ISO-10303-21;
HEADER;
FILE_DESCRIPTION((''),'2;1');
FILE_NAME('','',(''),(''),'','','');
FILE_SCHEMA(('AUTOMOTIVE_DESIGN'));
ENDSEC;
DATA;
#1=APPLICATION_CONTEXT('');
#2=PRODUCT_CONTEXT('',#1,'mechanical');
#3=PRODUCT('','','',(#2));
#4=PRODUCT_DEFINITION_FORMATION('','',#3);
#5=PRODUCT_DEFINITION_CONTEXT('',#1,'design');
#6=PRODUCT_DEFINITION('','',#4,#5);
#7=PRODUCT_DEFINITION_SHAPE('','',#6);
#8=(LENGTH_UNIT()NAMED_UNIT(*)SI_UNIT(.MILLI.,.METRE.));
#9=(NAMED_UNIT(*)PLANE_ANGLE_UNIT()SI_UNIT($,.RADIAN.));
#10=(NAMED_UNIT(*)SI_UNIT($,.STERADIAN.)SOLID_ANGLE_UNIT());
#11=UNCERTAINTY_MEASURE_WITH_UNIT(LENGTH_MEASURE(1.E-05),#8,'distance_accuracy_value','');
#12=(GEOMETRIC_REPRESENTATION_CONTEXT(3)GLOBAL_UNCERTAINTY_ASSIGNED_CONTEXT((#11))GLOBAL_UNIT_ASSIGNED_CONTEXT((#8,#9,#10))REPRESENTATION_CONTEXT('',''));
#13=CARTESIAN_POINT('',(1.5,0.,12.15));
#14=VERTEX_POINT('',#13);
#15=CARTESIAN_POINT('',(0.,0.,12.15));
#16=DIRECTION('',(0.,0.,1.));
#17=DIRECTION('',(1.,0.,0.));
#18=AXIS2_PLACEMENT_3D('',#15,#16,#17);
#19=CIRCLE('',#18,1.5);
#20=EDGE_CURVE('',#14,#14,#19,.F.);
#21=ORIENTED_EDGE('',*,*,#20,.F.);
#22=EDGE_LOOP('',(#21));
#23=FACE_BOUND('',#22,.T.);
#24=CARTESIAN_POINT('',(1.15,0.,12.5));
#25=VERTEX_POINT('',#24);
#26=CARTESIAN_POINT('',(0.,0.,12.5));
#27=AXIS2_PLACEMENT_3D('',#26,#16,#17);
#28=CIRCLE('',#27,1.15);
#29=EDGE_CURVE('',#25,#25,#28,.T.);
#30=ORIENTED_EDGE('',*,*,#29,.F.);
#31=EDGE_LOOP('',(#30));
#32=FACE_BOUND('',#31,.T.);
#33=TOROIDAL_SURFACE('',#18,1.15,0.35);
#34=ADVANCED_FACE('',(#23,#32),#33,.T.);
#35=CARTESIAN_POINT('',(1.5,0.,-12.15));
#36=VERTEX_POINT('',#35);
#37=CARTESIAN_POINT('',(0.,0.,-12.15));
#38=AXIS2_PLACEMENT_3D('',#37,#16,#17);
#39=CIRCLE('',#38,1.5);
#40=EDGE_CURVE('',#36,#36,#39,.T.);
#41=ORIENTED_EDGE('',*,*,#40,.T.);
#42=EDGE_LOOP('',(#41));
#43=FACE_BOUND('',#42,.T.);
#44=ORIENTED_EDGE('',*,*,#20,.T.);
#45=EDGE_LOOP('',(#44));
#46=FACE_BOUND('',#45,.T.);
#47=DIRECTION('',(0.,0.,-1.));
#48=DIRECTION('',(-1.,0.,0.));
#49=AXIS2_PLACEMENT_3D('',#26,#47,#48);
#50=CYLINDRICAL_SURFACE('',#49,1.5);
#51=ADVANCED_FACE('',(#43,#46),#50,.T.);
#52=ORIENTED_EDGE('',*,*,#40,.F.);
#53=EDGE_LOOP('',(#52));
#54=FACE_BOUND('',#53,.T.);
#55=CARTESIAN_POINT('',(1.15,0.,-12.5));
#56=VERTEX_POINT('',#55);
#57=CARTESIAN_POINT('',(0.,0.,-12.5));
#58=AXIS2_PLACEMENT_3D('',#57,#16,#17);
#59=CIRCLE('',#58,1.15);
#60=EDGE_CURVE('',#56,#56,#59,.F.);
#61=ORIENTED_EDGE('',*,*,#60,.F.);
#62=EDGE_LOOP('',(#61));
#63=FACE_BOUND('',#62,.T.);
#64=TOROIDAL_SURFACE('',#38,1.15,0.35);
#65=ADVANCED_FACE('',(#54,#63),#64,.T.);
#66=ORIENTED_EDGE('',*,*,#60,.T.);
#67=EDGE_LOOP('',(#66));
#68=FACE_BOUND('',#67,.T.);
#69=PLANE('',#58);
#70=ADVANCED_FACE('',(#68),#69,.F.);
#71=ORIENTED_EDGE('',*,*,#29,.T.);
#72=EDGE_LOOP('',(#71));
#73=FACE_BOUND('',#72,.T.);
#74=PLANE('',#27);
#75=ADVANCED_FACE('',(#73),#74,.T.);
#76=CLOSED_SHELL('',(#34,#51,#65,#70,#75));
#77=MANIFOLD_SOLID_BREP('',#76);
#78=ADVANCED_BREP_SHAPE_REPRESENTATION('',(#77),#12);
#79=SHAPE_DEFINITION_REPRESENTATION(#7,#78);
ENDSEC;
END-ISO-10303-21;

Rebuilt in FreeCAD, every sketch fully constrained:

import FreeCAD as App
import Part
import Sketcher


def edges_at(feature, points):
    """Names of the edges that pass closest to the given points."""
    edges = feature.Shape.Edges
    near = lambda p: min(range(len(edges)), key=lambda i: edges[i].distToShape(Part.Vertex(*p))[0])
    return sorted({f"Edge{near(p) + 1}" for p in points})

doc = App.newDocument("Part")
body = doc.addObject("PartDesign::Body", "Body")

sketch1 = body.newObject("Sketcher::SketchObject", "Sketch")
sketch1.AttachmentSupport = (doc.getObject("XY_Plane"), [""])
sketch1.MapMode = "FlatFace"
sketch1.addGeometry(Part.Circle(App.Vector(0, 0, 0), App.Vector(0, 0, 1), 1.5), False)
sketch1.addConstraint([
    Sketcher.Constraint("Coincident", 0, 3, -1, 1),
    Sketcher.Constraint("Diameter", 0, 3.0),
])
pad1 = body.newObject("PartDesign::Pad", "Pad")
pad1.Profile = sketch1
pad1.Length = 25
pad1.Midplane = True
doc.recompute()

fillet = body.newObject("PartDesign::Fillet", "Fillet")
fillet.Base = (pad1, edges_at(pad1, [(-1.5, 0, -12.5), (-1.5, 0, 12.5)]))
fillet.Radius = 0.35

doc.recompute()
